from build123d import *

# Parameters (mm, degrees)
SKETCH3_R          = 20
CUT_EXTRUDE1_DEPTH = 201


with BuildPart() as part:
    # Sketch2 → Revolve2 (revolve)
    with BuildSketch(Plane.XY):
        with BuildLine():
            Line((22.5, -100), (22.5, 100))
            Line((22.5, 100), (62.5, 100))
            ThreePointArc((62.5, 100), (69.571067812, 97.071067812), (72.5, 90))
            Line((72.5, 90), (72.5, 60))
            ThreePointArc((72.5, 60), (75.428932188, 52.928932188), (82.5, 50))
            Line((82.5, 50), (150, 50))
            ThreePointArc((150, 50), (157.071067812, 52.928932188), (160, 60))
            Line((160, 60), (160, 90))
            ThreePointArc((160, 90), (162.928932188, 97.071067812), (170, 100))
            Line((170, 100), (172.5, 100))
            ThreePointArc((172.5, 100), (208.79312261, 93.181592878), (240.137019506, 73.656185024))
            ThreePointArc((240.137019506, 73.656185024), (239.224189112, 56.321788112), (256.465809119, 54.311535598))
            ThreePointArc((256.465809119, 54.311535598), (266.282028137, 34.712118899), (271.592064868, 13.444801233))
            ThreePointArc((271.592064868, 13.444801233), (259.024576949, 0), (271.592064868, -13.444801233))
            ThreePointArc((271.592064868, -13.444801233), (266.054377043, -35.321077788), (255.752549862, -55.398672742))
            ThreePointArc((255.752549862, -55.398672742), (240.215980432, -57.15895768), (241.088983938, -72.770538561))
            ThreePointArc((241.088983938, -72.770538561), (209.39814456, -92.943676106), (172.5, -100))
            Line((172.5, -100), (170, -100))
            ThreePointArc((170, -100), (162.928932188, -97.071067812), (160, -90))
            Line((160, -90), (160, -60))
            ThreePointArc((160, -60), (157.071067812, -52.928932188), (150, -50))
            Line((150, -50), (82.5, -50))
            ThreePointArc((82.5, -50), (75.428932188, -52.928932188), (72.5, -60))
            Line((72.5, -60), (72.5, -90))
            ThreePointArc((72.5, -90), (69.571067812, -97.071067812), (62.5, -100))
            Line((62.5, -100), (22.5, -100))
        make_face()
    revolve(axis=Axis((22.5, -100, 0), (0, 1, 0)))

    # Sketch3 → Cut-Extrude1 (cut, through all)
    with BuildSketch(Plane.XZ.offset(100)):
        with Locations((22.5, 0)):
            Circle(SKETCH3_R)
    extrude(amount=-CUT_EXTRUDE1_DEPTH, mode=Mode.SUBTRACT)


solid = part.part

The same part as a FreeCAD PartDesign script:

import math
import FreeCAD as App
import Part
import Sketcher

V = App.Vector

doc = App.newDocument("Part")
params = doc.addObject("Spreadsheet::Sheet", "Params")
for row, (alias, value) in enumerate([
    ("sketch1_radius", "10 mm"),
    ("sketch1_radius2", "100 mm"),
    ("sketch1_width", "40 mm"),
    ("sketch1_height", "30 mm"),
    ("sketch1_width2", "67.5 mm"),
    ("revolution_angle", "360 deg"),
    ("sketch2_diameter", "40 mm"),
], start=1):
    params.set(f"A{row}", alias)
    params.set(f"B{row}", "=" + value)
    params.setAlias(f"B{row}", alias)

body = doc.addObject("PartDesign::Body", "Body")

sketch1 = doc.addObject("Sketcher::SketchObject", "Sketch")
body.addObject(sketch1)
sketch1.AttachmentSupport = (doc.XY_Plane, [""])
sketch1.MapMode = "FlatFace"
sketch1.addGeometry([
    Part.LineSegment(V(22.5, 100, 0), V(22.5, -100, 0)),
    Part.LineSegment(V(22.5, -100, 0), V(62.5, -100, 0)),
    Part.ArcOfCircle(Part.Circle(V(62.5, -90, 0), V(0, 0, 1), 10), math.radians(-90), math.radians(0)),
    Part.LineSegment(V(72.5, -90, 0), V(72.5, -60, 0)),
    Part.ArcOfCircle(Part.Circle(V(82.5, -60, 0), V(0, 0, 1), 10), math.radians(90), math.radians(180)),
    Part.LineSegment(V(82.5, -50, 0), V(150, -50, 0)),
    Part.ArcOfCircle(Part.Circle(V(150, -60, 0), V(0, 0, 1), 10), math.radians(0), math.radians(90)),
    Part.LineSegment(V(160, -60, 0), V(160, -90, 0)),
    Part.ArcOfCircle(Part.Circle(V(170, -90, 0), V(0, 0, 1), 10), math.radians(180), math.radians(270)),
    Part.LineSegment(V(170, -100, 0), V(172.5, -100, 0)),
    Part.ArcOfCircle(Part.Circle(V(172.5, 0, 0), V(0, 0, 1), 100), math.radians(-90), math.radians(-47)),
    Part.ArcOfCircle(Part.Circle(V(248.9, -64.5, 0), V(0, 0, 1), 11.4), math.radians(53), math.radians(227)),
    Part.ArcOfCircle(Part.Circle(V(172.5, 0, 0), V(0, 0, 1), 100), math.radians(-34), math.radians(-8)),
    Part.ArcOfCircle(Part.Circle(V(272.5, 0, 0), V(0, 0, 1), 13.5), math.radians(94), math.radians(266)),
    Part.ArcOfCircle(Part.Circle(V(172.5, 0, 0), V(0, 0, 1), 100), math.radians(8), math.radians(33)),
    Part.ArcOfCircle(Part.Circle(V(248.9, 64.5, 0), V(0, 0, 1), 12.7), math.radians(134), math.radians(307)),
    Part.ArcOfCircle(Part.Circle(V(172.5, 0, 0), V(0, 0, 1), 100), math.radians(47), math.radians(90)),
    Part.LineSegment(V(172.5, 100, 0), V(170, 100, 0)),
    Part.ArcOfCircle(Part.Circle(V(170, 90, 0), V(0, 0, 1), 10), math.radians(90), math.radians(180)),
    Part.LineSegment(V(160, 90, 0), V(160, 60, 0)),
    Part.ArcOfCircle(Part.Circle(V(150, 60, 0), V(0, 0, 1), 10), math.radians(-90), math.radians(0)),
    Part.LineSegment(V(150, 50, 0), V(82.5, 50, 0)),
    Part.ArcOfCircle(Part.Circle(V(82.5, 60, 0), V(0, 0, 1), 10), math.radians(180), math.radians(270)),
    Part.LineSegment(V(72.5, 60, 0), V(72.5, 90, 0)),
    Part.ArcOfCircle(Part.Circle(V(62.5, 90, 0), V(0, 0, 1), 10), math.radians(0), math.radians(90)),
    Part.LineSegment(V(62.5, 100, 0), V(22.5, 100, 0)),
], False)
sketch1.addGeometry(Part.LineSegment(V(22.5, -100, 0), V(22.5, 100, 0)), True)
sketch1.addConstraint([
    Sketcher.Constraint("Coincident", 0, 2, 1, 1),
    Sketcher.Constraint("Tangent", 1, 2, 2, 1),
    Sketcher.Constraint("Tangent", 2, 2, 3, 1),
    Sketcher.Constraint("Tangent", 3, 2, 4, 2),
    Sketcher.Constraint("Tangent", 4, 1, 5, 1),
    Sketcher.Constraint("Tangent", 5, 2, 6, 2),
    Sketcher.Constraint("Tangent", 6, 1, 7, 1),
    Sketcher.Constraint("Tangent", 7, 2, 8, 1),
    Sketcher.Constraint("Tangent", 8, 2, 9, 1),
    Sketcher.Constraint("Tangent", 9, 2, 10, 1),
    Sketcher.Constraint("Coincident", 10, 2, 11, 2),
    Sketcher.Constraint("Coincident", 11, 1, 12, 1),
    Sketcher.Constraint("Coincident", 12, 2, 13, 2),
    Sketcher.Constraint("Coincident", 13, 1, 14, 1),
    Sketcher.Constraint("Coincident", 14, 2, 15, 2),
    Sketcher.Constraint("Coincident", 15, 1, 16, 1),
    Sketcher.Constraint("Tangent", 16, 2, 17, 1),
    Sketcher.Constraint("Tangent", 17, 2, 18, 1),
    Sketcher.Constraint("Tangent", 18, 2, 19, 1),
    Sketcher.Constraint("Tangent", 19, 2, 20, 2),
    Sketcher.Constraint("Tangent", 20, 1, 21, 1),
    Sketcher.Constraint("Tangent", 21, 2, 22, 2),
    Sketcher.Constraint("Tangent", 22, 1, 23, 1),
    Sketcher.Constraint("Tangent", 23, 2, 24, 1),
    Sketcher.Constraint("Tangent", 24, 2, 25, 1),
    Sketcher.Constraint("Coincident", 25, 2, 0, 1),
    Sketcher.Constraint("Vertical", 0),
    Sketcher.Constraint("Horizontal", 1),
    Sketcher.Constraint("Vertical", 3),
    Sketcher.Constraint("Horizontal", 5),
    Sketcher.Constraint("Vertical", 7),
    Sketcher.Constraint("Horizontal", 9),
    Sketcher.Constraint("Horizontal", 17),
    Sketcher.Constraint("Vertical", 19),
    Sketcher.Constraint("Horizontal", 21),
    Sketcher.Constraint("Vertical", 23),
    Sketcher.Constraint("Horizontal", 25),
    Sketcher.Constraint("Vertical", 26),
    Sketcher.Constraint("Coincident", 12, 3, 10, 3),
    Sketcher.Constraint("Coincident", 14, 3, 10, 3),
    Sketcher.Constraint("Coincident", 16, 3, 10, 3),
    Sketcher.Constraint("Coincident", 26, 1, 0, 2),
    Sketcher.Constraint("Equal", 2, 4),
    Sketcher.Constraint("Equal", 4, 6),
    Sketcher.Constraint("Equal", 6, 8),
    Sketcher.Constraint("Equal", 10, 12),
    Sketcher.Constraint("Equal", 12, 14),
    Sketcher.Constraint("Equal", 14, 16),
    Sketcher.Constraint("Equal", 8, 18),
    Sketcher.Constraint("Equal", 18, 20),
    Sketcher.Constraint("Equal", 20, 22),
    Sketcher.Constraint("Equal", 22, 24),
    Sketcher.Constraint("Symmetric", 11, 3, 15, 3, -1),
    Sketcher.Constraint("Symmetric", 8, 3, 18, 3, -1),
    Sketcher.Constraint("Symmetric", 4, 3, 22, 3, -1),
    Sketcher.Constraint("PointOnObject", 13, 3, -1),
    Sketcher.Constraint("Horizontal", 2, 3, 8, 3),
    Sketcher.Constraint("Horizontal", 18, 3, 24, 3),
    Sketcher.Constraint("Horizontal", 24, 2, 26, 2),
    Sketcher.Constraint("Radius", 2, 10.0),
    Sketcher.Constraint("Radius", 10, 100.0),
    Sketcher.Constraint("DistanceX", 1, 1, 1, 2, 40.0),
    Sketcher.Constraint("DistanceY", 3, 1, 3, 2, 30.0),
    Sketcher.Constraint("DistanceX", 5, 1, 5, 2, 67.5),
    Sketcher.Constraint("DistanceX", 9, 1, 9, 2, 2.5),
    Sketcher.Constraint("DistanceX", -1, 1, 6, 3, 150.0),
    Sketcher.Constraint("DistanceX", 10, 3, 13, 3, 100.0),
    Sketcher.Constraint("Radius", 11, 11.3851),
    Sketcher.Constraint("Radius", 13, 13.475423),
    Sketcher.Constraint("Radius", 15, 12.682984),
    Sketcher.Constraint("DistanceX", 15, 1, 15, 3, 8.779002),
    Sketcher.Constraint("DistanceX", -1, 1, 11, 3, 248.916021),
])
sketch1.setExpression("Constraints[59]", "Params.sketch1_radius")
sketch1.setExpression("Constraints[60]", "Params.sketch1_radius2")
sketch1.setExpression("Constraints[61]", "Params.sketch1_width")
sketch1.setExpression("Constraints[62]", "Params.sketch1_height")
sketch1.setExpression("Constraints[63]", "Params.sketch1_width2")
revolution = doc.addObject("PartDesign::Revolution", "Revolution")
body.addObject(revolution)
revolution.Profile = sketch1
revolution.ReferenceAxis = (sketch1, ["Axis0"])
revolution.setExpression("Angle", "Params.revolution_angle")

sketch2 = doc.addObject("Sketcher::SketchObject", "Sketch001")
body.addObject(sketch2)
sketch2.AttachmentSupport = (doc.XZ_Plane, [""])
sketch2.MapMode = "FlatFace"
sketch2.AttachmentOffset = App.Placement(V(0, 0, 100), App.Rotation())
sketch2.addGeometry(Part.Circle(V(22, 0, 0), V(0, 0, 1), 20), False)
sketch2.addConstraint([
    Sketcher.Constraint("PointOnObject", 0, 3, -1),
    Sketcher.Constraint("Diameter", 0, 40.0),
    Sketcher.Constraint("DistanceX", -1, 1, 0, 3, 22.5),
])
sketch2.setExpression("Constraints[1]", "Params.sketch2_diameter")
pocket1 = doc.addObject("PartDesign::Pocket", "Pocket")
body.addObject(pocket1)
pocket1.Profile = sketch2
pocket1.Type = "ThroughAll"

doc.recompute()
